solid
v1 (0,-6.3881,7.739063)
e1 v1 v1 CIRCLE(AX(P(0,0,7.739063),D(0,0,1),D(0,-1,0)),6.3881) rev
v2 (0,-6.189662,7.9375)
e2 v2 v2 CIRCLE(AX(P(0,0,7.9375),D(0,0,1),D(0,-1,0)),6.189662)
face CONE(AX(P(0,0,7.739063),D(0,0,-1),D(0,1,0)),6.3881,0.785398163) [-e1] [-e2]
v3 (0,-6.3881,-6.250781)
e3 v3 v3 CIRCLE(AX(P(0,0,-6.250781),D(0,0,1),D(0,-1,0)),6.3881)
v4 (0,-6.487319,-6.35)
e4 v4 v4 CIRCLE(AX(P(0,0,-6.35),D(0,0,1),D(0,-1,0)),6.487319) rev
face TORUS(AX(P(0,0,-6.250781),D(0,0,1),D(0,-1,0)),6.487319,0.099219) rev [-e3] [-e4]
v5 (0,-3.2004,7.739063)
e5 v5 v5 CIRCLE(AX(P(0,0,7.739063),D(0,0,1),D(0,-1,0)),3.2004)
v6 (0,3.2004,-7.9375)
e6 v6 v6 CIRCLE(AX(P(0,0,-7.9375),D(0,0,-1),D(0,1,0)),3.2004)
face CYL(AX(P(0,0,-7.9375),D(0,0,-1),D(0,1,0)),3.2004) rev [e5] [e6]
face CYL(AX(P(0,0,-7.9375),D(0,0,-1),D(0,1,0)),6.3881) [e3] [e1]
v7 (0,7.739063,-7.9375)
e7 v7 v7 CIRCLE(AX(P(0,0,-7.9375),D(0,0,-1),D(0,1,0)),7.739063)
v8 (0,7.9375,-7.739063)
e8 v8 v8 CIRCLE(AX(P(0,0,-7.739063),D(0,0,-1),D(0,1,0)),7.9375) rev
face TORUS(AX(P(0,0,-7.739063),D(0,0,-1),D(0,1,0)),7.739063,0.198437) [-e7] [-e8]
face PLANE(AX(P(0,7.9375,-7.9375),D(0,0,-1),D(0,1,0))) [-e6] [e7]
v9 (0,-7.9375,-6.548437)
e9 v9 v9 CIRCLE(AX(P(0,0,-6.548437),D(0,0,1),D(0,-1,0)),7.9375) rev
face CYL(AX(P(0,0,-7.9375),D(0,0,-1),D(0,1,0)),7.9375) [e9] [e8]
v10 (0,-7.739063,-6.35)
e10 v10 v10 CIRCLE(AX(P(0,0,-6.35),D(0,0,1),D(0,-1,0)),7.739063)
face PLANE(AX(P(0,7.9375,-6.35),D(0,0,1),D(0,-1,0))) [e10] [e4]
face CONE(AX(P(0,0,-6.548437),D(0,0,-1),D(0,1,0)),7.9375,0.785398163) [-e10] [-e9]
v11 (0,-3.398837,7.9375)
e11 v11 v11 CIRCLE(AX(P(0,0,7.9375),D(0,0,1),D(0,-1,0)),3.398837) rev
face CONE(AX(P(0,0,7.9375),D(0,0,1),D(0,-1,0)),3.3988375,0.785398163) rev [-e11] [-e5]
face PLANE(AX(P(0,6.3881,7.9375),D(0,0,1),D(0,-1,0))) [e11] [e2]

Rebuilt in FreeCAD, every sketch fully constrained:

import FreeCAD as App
import Part
import Sketcher
from FreeCAD import Vector
Q = App.Units.Quantity


def edges_at(feature, points):
    """Names of the edges that pass closest to the given points."""
    edges = feature.Shape.Edges
    near = lambda p: min(range(len(edges)), key=lambda i: edges[i].distToShape(Part.Vertex(*p))[0])
    return sorted({f"Edge{near(p) + 1}" for p in points})


def add_polygon(sketch, points):
    """Adds a closed chain of lines whose ends are joined by coincident constraints."""
    first, n = sketch.GeometryCount, len(points)
    for a, b in zip(points, points[1:] + points[:1]):
        sketch.addGeometry(Part.LineSegment(App.Vector(*a, 0), App.Vector(*b, 0)), False)
    for i in range(n):
        sketch.addConstraint(Sketcher.Constraint("Coincident", first + i, 2, first + (i + 1) % n, 1))

doc = App.newDocument("Part")
body = doc.addObject("PartDesign::Body", "Body")

# Sketch on YZ plane
sketch1 = body.newObject("Sketcher::SketchObject", "Sketch")
sketch1.AttachmentSupport = (doc.getObject("YZ_Plane"), [""])
sketch1.MapMode = "FlatFace"
add_polygon(sketch1, [(7.9, -7.9), (7.9, -6.3), (6.4, -6.3), (6.4, 7.9), (3.2, 7.9), (3.2, -7.9)])  # lines 0-5
sketch1.addConstraint([
    Sketcher.Constraint("Vertical", 0),
    Sketcher.Constraint("Horizontal", 1),
    Sketcher.Constraint("Vertical", 2),
    Sketcher.Constraint("Horizontal", 3),
    Sketcher.Constraint("Vertical", 4),
    Sketcher.Constraint("Horizontal", 5),
    Sketcher.Constraint("DistanceX", 1, 2, 1, 1, Q("0.061 in")),
    Sketcher.Constraint("DistanceY", 0, 1, 0, 2, Q("0.0625 in")),
    Sketcher.Constraint("DistanceY", 2, 1, 2, 2, Q("0.5625 in")),
    Sketcher.Constraint("DistanceY", 0, 2, -1, 1, Q("0.25 in")),
    Sketcher.Constraint("DistanceX", 3, 2, 3, 1, Q("0.1255 in")),
    Sketcher.Constraint("DistanceX", -1, 1, 0, 2, Q("0.3125 in")),
])
revolution = body.newObject("PartDesign::Revolution", "Revolution")
revolution.Profile = sketch1
revolution.ReferenceAxis = (sketch1, ["V_Axis"])
revolution.Angle = 360
doc.recompute()

chamfer = body.newObject("PartDesign::Chamfer", "Chamfer")
chamfer.Base = (revolution, edges_at(revolution, [(0, -3.2, 7.938), (0, -6.388, 7.938), (0, -7.938, -6.35)]))
chamfer.Size = 0.198437
doc.recompute()

fillet = body.newObject("PartDesign::Fillet", "Fillet")
fillet.Base = (chamfer, edges_at(chamfer, [(0, -7.938, -7.938)]))
fillet.Radius = 0.198437
doc.recompute()

fillet2 = body.newObject("PartDesign::Fillet", "Fillet001")
fillet2.Base = (fillet, edges_at(fillet, [(0, -6.388, -6.35)]))
fillet2.Radius = 0.099219

doc.recompute()
